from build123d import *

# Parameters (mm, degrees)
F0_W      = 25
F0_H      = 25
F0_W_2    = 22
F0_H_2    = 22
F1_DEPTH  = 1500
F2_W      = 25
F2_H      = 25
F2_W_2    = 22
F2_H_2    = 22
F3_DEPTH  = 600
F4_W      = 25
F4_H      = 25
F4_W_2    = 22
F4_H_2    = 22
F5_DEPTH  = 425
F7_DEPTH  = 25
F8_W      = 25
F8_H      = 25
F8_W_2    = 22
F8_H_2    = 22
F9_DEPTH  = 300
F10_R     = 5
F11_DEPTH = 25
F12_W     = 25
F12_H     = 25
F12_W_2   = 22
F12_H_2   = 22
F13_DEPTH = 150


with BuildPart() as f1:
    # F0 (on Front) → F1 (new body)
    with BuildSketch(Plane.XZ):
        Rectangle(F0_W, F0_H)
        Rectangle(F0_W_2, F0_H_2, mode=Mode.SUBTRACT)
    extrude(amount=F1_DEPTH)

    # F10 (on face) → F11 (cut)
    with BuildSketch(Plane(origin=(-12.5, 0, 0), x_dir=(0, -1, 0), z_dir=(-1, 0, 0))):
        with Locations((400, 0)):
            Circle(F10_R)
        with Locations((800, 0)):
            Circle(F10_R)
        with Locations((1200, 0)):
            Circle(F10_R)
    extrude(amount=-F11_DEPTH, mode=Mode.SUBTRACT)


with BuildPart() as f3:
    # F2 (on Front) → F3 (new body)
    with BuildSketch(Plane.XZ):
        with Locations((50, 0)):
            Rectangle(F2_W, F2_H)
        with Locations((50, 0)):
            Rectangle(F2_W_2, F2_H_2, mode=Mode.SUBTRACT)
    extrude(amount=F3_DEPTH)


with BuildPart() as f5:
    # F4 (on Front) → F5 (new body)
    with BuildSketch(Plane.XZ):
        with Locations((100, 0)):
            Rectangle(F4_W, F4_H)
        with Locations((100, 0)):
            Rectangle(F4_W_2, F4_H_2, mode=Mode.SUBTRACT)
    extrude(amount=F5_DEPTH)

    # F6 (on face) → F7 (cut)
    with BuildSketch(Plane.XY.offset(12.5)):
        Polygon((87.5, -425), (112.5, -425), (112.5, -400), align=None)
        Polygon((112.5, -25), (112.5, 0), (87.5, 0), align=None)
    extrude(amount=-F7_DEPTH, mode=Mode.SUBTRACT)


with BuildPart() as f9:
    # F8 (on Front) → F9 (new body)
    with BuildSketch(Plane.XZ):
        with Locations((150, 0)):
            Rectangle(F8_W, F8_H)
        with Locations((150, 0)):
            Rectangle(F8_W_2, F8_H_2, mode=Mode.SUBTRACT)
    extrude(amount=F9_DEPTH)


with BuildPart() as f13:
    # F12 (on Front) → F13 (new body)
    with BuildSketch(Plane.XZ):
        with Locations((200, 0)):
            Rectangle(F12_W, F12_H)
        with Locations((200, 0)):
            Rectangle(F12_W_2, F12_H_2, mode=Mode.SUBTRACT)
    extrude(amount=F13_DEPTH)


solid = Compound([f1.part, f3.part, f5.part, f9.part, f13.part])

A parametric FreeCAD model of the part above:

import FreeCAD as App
import Part
import Sketcher
Q = App.Units.Quantity

doc = App.newDocument("Part")
body = doc.addObject("PartDesign::Body", "Body")

sketch1 = body.newObject("Sketcher::SketchObject", "Sketch")
sketch1.AttachmentSupport = (doc.getObject("XZ_Plane"), [""])
sketch1.MapMode = "FlatFace"
sketch1.addGeometry([
    Part.LineSegment(App.Vector(-12, 12, 0), App.Vector(-12, -12, 0)),
    Part.LineSegment(App.Vector(-12, -12, 0), App.Vector(12, -12, 0)),
    Part.LineSegment(App.Vector(12, -12, 0), App.Vector(12, 12, 0)),
    Part.LineSegment(App.Vector(12, 12, 0), App.Vector(-12, 12, 0)),
    Part.LineSegment(App.Vector(11, -11, 0), App.Vector(-11, -11, 0)),
    Part.LineSegment(App.Vector(-11, -11, 0), App.Vector(-11, 11, 0)),
    Part.LineSegment(App.Vector(-11, 11, 0), App.Vector(11, 11, 0)),
    Part.LineSegment(App.Vector(11, 11, 0), App.Vector(11, -11, 0)),
], False)
sketch1.addConstraint([
    Sketcher.Constraint("Coincident", 0, 2, 1, 1),
    Sketcher.Constraint("Coincident", 1, 2, 2, 1),
    Sketcher.Constraint("Coincident", 2, 2, 3, 1),
    Sketcher.Constraint("Coincident", 3, 2, 0, 1),
    Sketcher.Constraint("Coincident", 4, 2, 5, 1),
    Sketcher.Constraint("Coincident", 5, 2, 6, 1),
    Sketcher.Constraint("Coincident", 6, 2, 7, 1),
    Sketcher.Constraint("Coincident", 7, 2, 4, 1),
    Sketcher.Constraint("Vertical", 0),
    Sketcher.Constraint("Horizontal", 1),
    Sketcher.Constraint("Vertical", 2),
    Sketcher.Constraint("Horizontal", 3),
    Sketcher.Constraint("Horizontal", 4),
    Sketcher.Constraint("Vertical", 5),
    Sketcher.Constraint("Horizontal", 6),
    Sketcher.Constraint("Vertical", 7),
    Sketcher.Constraint("Symmetric", 0, 2, 2, 2, -1, 1),
    Sketcher.Constraint("Symmetric", 4, 2, 6, 2, -1, 1),
    Sketcher.Constraint("Equal", 3, 0),
    Sketcher.Constraint("Equal", 6, 5),
    Sketcher.Constraint("DistanceX", 1, 1, 1, 2, Q("25 mm")),
    Sketcher.Constraint("DistanceX", 4, 2, 4, 1, Q("22 mm")),
])
pad1 = body.newObject("PartDesign::Pad", "Pad")
pad1.Profile = sketch1
pad1.Length = 1500

sketch2 = body.newObject("Sketcher::SketchObject", "Sketch001")
sketch2.AttachmentSupport = (doc.getObject("YZ_Plane"), [""])
sketch2.MapMode = "FlatFace"
sketch2.AttachmentOffset = App.Placement(App.Vector(0, 0, -12.5), App.Rotation())
sketch2.addGeometry([
    Part.Circle(App.Vector(-400, 0, 0), App.Vector(0, 0, 1), 5),
    Part.Circle(App.Vector(-800, 0, 0), App.Vector(0, 0, 1), 5),
    Part.Circle(App.Vector(-1200, 0, 0), App.Vector(0, 0, 1), 5),
], False)
sketch2.addConstraint([
    Sketcher.Constraint("Equal", 0, 1),
    Sketcher.Constraint("Equal", 1, 2),
    Sketcher.Constraint("PointOnObject", 0, 3, -1),
    Sketcher.Constraint("PointOnObject", 1, 3, -1),
    Sketcher.Constraint("PointOnObject", 2, 3, -1),
    Sketcher.Constraint("Diameter", 0, Q("10 mm")),
    Sketcher.Constraint("DistanceX", 0, 3, -1, 1, Q("400 mm")),
    Sketcher.Constraint("DistanceX", 1, 3, -1, 1, Q("800 mm")),
    Sketcher.Constraint("DistanceX", 2, 3, -1, 1, Q("1200 mm")),
])
pocket1 = body.newObject("PartDesign::Pocket", "Pocket")
pocket1.Profile = sketch2
pocket1.Length = 25
pocket1.Reversed = True
body2 = doc.addObject("PartDesign::Body", "Body001")

sketch3 = body2.newObject("Sketcher::SketchObject", "Sketch002")
sketch3.AttachmentSupport = (doc.getObject("XZ_Plane001"), [""])
sketch3.MapMode = "FlatFace"
sketch3.addGeometry([
    Part.LineSegment(App.Vector(38, 12, 0), App.Vector(38, -12, 0)),
    Part.LineSegment(App.Vector(38, -12, 0), App.Vector(62, -12, 0)),
    Part.LineSegment(App.Vector(62, -12, 0), App.Vector(62, 12, 0)),
    Part.LineSegment(App.Vector(62, 12, 0), App.Vector(38, 12, 0)),
    Part.LineSegment(App.Vector(61, -11, 0), App.Vector(39, -11, 0)),
    Part.LineSegment(App.Vector(39, -11, 0), App.Vector(39, 11, 0)),
    Part.LineSegment(App.Vector(39, 11, 0), App.Vector(61, 11, 0)),
    Part.LineSegment(App.Vector(61, 11, 0), App.Vector(61, -11, 0)),
], False)
sketch3.addConstraint([
    Sketcher.Constraint("Coincident", 0, 2, 1, 1),
    Sketcher.Constraint("Coincident", 1, 2, 2, 1),
    Sketcher.Constraint("Coincident", 2, 2, 3, 1),
    Sketcher.Constraint("Coincident", 3, 2, 0, 1),
    Sketcher.Constraint("Coincident", 4, 2, 5, 1),
    Sketcher.Constraint("Coincident", 5, 2, 6, 1),
    Sketcher.Constraint("Coincident", 6, 2, 7, 1),
    Sketcher.Constraint("Coincident", 7, 2, 4, 1),
    Sketcher.Constraint("Vertical", 0),
    Sketcher.Constraint("Horizontal", 1),
    Sketcher.Constraint("Vertical", 2),
    Sketcher.Constraint("Horizontal", 3),
    Sketcher.Constraint("Horizontal", 4),
    Sketcher.Constraint("Vertical", 5),
    Sketcher.Constraint("Horizontal", 6),
    Sketcher.Constraint("Vertical", 7),
    Sketcher.Constraint("Equal", 3, 0),
    Sketcher.Constraint("Equal", 6, 5),
    Sketcher.Constraint("DistanceX", 1, 1, 1, 2, Q("25 mm")),
    Sketcher.Constraint("DistanceX", 4, 2, 4, 1, Q("22 mm")),
    Sketcher.Constraint("DistanceX", -1, 1, 4, 2, Q("39 mm")),
    Sketcher.Constraint("DistanceY", 4, 2, -1, 1, Q("11 mm")),
    Sketcher.Constraint("DistanceX", -1, 1, 0, 2, Q("37.5 mm")),
    Sketcher.Constraint("DistanceY", 0, 2, -1, 1, Q("12.5 mm")),
])
pad2 = body2.newObject("PartDesign::Pad", "Pad001")
pad2.Profile = sketch3
pad2.Length = 600
body3 = doc.addObject("PartDesign::Body", "Body002")

sketch4 = body3.newObject("Sketcher::SketchObject", "Sketch003")
sketch4.AttachmentSupport = (doc.getObject("XZ_Plane002"), [""])
sketch4.MapMode = "FlatFace"
sketch4.addGeometry([
    Part.LineSegment(App.Vector(88, 12, 0), App.Vector(88, -12, 0)),
    Part.LineSegment(App.Vector(88, -12, 0), App.Vector(112, -12, 0)),
    Part.LineSegment(App.Vector(112, -12, 0), App.Vector(112, 12, 0)),
    Part.LineSegment(App.Vector(112, 12, 0), App.Vector(88, 12, 0)),
    Part.LineSegment(App.Vector(111, -11, 0), App.Vector(89, -11, 0)),
    Part.LineSegment(App.Vector(89, -11, 0), App.Vector(89, 11, 0)),
    Part.LineSegment(App.Vector(89, 11, 0), App.Vector(111, 11, 0)),
    Part.LineSegment(App.Vector(111, 11, 0), App.Vector(111, -11, 0)),
], False)
sketch4.addConstraint([
    Sketcher.Constraint("Coincident", 0, 2, 1, 1),
    Sketcher.Constraint("Coincident", 1, 2, 2, 1),
    Sketcher.Constraint("Coincident", 2, 2, 3, 1),
    Sketcher.Constraint("Coincident", 3, 2, 0, 1),
    Sketcher.Constraint("Coincident", 4, 2, 5, 1),
    Sketcher.Constraint("Coincident", 5, 2, 6, 1),
    Sketcher.Constraint("Coincident", 6, 2, 7, 1),
    Sketcher.Constraint("Coincident", 7, 2, 4, 1),
    Sketcher.Constraint("Vertical", 0),
    Sketcher.Constraint("Horizontal", 1),
    Sketcher.Constraint("Vertical", 2),
    Sketcher.Constraint("Horizontal", 3),
    Sketcher.Constraint("Horizontal", 4),
    Sketcher.Constraint("Vertical", 5),
    Sketcher.Constraint("Horizontal", 6),
    Sketcher.Constraint("Vertical", 7),
    Sketcher.Constraint("Equal", 3, 0),
    Sketcher.Constraint("Equal", 6, 5),
    Sketcher.Constraint("DistanceX", 1, 1, 1, 2, Q("25 mm")),
    Sketcher.Constraint("DistanceX", 4, 2, 4, 1, Q("22 mm")),
    Sketcher.Constraint("DistanceX", -1, 1, 4, 2, Q("89 mm")),
    Sketcher.Constraint("DistanceY", 4, 2, -1, 1, Q("11 mm")),
    Sketcher.Constraint("DistanceX", -1, 1, 0, 2, Q("87.5 mm")),
    Sketcher.Constraint("DistanceY", 0, 2, -1, 1, Q("12.5 mm")),
])
pad3 = body3.newObject("PartDesign::Pad", "Pad002")
pad3.Profile = sketch4
pad3.Length = 425

sketch5 = body3.newObject("Sketcher::SketchObject", "Sketch004")
sketch5.AttachmentSupport = (doc.getObject("XY_Plane002"), [""])
sketch5.MapMode = "FlatFace"
sketch5.AttachmentOffset = App.Placement(App.Vector(0, 0, 12.5), App.Rotation())
sketch5.addGeometry([
    Part.LineSegment(App.Vector(88, -425, 0), App.Vector(112, -425, 0)),
    Part.LineSegment(App.Vector(112, -425, 0), App.Vector(112, -400, 0)),
    Part.LineSegment(App.Vector(112, -400, 0), App.Vector(88, -425, 0)),
    Part.LineSegment(App.Vector(112, -25, 0), App.Vector(112, 0, 0)),
    Part.LineSegment(App.Vector(112, 0, 0), App.Vector(88, 0, 0)),
    Part.LineSegment(App.Vector(88, 0, 0), App.Vector(112, -25, 0)),
], False)
sketch5.addConstraint([
    Sketcher.Constraint("Coincident", 0, 2, 1, 1),
    Sketcher.Constraint("Coincident", 1, 2, 2, 1),
    Sketcher.Constraint("Coincident", 2, 2, 0, 1),
    Sketcher.Constraint("Coincident", 3, 2, 4, 1),
    Sketcher.Constraint("Coincident", 4, 2, 5, 1),
    Sketcher.Constraint("Coincident", 5, 2, 3, 1),
    Sketcher.Constraint("Horizontal", 0),
    Sketcher.Constraint("Vertical", 1),
    Sketcher.Constraint("Vertical", 3),
    Sketcher.Constraint("Horizontal", 4),
    Sketcher.Constraint("PointOnObject", 3, 2, -1),
    Sketcher.Constraint("Perpendicular", 2, 5),
    Sketcher.Constraint("Vertical", 1, 2, 3, 2),
    Sketcher.Constraint("Vertical", 2, 2, 4, 2),
    Sketcher.Constraint("Equal", 4, 1),
    Sketcher.Constraint("DistanceX", 0, 1, 0, 2, Q("25 mm")),
    Sketcher.Constraint("DistanceY", 0, 2, -1, 1, Q("425 mm")),
    Sketcher.Constraint("DistanceX", -1, 1, 0, 2, Q("112.5 mm")),
])
pocket2 = body3.newObject("PartDesign::Pocket", "Pocket001")
pocket2.Profile = sketch5
pocket2.Length = 25
body4 = doc.addObject("PartDesign::Body", "Body003")

sketch6 = body4.newObject("Sketcher::SketchObject", "Sketch005")
sketch6.AttachmentSupport = (doc.getObject("XZ_Plane003"), [""])
sketch6.MapMode = "FlatFace"
sketch6.addGeometry([
    Part.LineSegment(App.Vector(138, 12, 0), App.Vector(138, -12, 0)),
    Part.LineSegment(App.Vector(138, -12, 0), App.Vector(162, -12, 0)),
    Part.LineSegment(App.Vector(162, -12, 0), App.Vector(162, 12, 0)),
    Part.LineSegment(App.Vector(162, 12, 0), App.Vector(138, 12, 0)),
    Part.LineSegment(App.Vector(161, -11, 0), App.Vector(139, -11, 0)),
    Part.LineSegment(App.Vector(139, -11, 0), App.Vector(139, 11, 0)),
    Part.LineSegment(App.Vector(139, 11, 0), App.Vector(161, 11, 0)),
    Part.LineSegment(App.Vector(161, 11, 0), App.Vector(161, -11, 0)),
], False)
sketch6.addConstraint([
    Sketcher.Constraint("Coincident", 0, 2, 1, 1),
    Sketcher.Constraint("Coincident", 1, 2, 2, 1),
    Sketcher.Constraint("Coincident", 2, 2, 3, 1),
    Sketcher.Constraint("Coincident", 3, 2, 0, 1),
    Sketcher.Constraint("Coincident", 4, 2, 5, 1),
    Sketcher.Constraint("Coincident", 5, 2, 6, 1),
    Sketcher.Constraint("Coincident", 6, 2, 7, 1),
    Sketcher.Constraint("Coincident", 7, 2, 4, 1),
    Sketcher.Constraint("Vertical", 0),
    Sketcher.Constraint("Horizontal", 1),
    Sketcher.Constraint("Vertical", 2),
    Sketcher.Constraint("Horizontal", 3),
    Sketcher.Constraint("Horizontal", 4),
    Sketcher.Constraint("Vertical", 5),
    Sketcher.Constraint("Horizontal", 6),
    Sketcher.Constraint("Vertical", 7),
    Sketcher.Constraint("Equal", 3, 0),
    Sketcher.Constraint("Equal", 6, 5),
    Sketcher.Constraint("DistanceX", 1, 1, 1, 2, Q("25 mm")),
    Sketcher.Constraint("DistanceX", 4, 2, 4, 1, Q("22 mm")),
    Sketcher.Constraint("DistanceX", -1, 1, 4, 2, Q("139 mm")),
    Sketcher.Constraint("DistanceY", 4, 2, -1, 1, Q("11 mm")),
    Sketcher.Constraint("DistanceX", -1, 1, 0, 2, Q("137.5 mm")),
    Sketcher.Constraint("DistanceY", 0, 2, -1, 1, Q("12.5 mm")),
])
pad4 = body4.newObject("PartDesign::Pad", "Pad003")
pad4.Profile = sketch6
pad4.Length = 300
body5 = doc.addObject("PartDesign::Body", "Body004")

sketch7 = body5.newObject("Sketcher::SketchObject", "Sketch006")
sketch7.AttachmentSupport = (doc.getObject("XZ_Plane004"), [""])
sketch7.MapMode = "FlatFace"
sketch7.addGeometry([
    Part.LineSegment(App.Vector(188, 12, 0), App.Vector(188, -12, 0)),
    Part.LineSegment(App.Vector(188, -12, 0), App.Vector(212, -12, 0)),
    Part.LineSegment(App.Vector(212, -12, 0), App.Vector(212, 12, 0)),
    Part.LineSegment(App.Vector(212, 12, 0), App.Vector(188, 12, 0)),
    Part.LineSegment(App.Vector(211, -11, 0), App.Vector(189, -11, 0)),
    Part.LineSegment(App.Vector(189, -11, 0), App.Vector(189, 11, 0)),
    Part.LineSegment(App.Vector(189, 11, 0), App.Vector(211, 11, 0)),
    Part.LineSegment(App.Vector(211, 11, 0), App.Vector(211, -11, 0)),
], False)
sketch7.addConstraint([
    Sketcher.Constraint("Coincident", 0, 2, 1, 1),
    Sketcher.Constraint("Coincident", 1, 2, 2, 1),
    Sketcher.Constraint("Coincident", 2, 2, 3, 1),
    Sketcher.Constraint("Coincident", 3, 2, 0, 1),
    Sketcher.Constraint("Coincident", 4, 2, 5, 1),
    Sketcher.Constraint("Coincident", 5, 2, 6, 1),
    Sketcher.Constraint("Coincident", 6, 2, 7, 1),
    Sketcher.Constraint("Coincident", 7, 2, 4, 1),
    Sketcher.Constraint("Vertical", 0),
    Sketcher.Constraint("Horizontal", 1),
    Sketcher.Constraint("Vertical", 2),
    Sketcher.Constraint("Horizontal", 3),
    Sketcher.Constraint("Horizontal", 4),
    Sketcher.Constraint("Vertical", 5),
    Sketcher.Constraint("Horizontal", 6),
    Sketcher.Constraint("Vertical", 7),
    Sketcher.Constraint("Equal", 3, 0),
    Sketcher.Constraint("Equal", 6, 5),
    Sketcher.Constraint("DistanceX", 1, 1, 1, 2, Q("25 mm")),
    Sketcher.Constraint("DistanceX", 4, 2, 4, 1, Q("22 mm")),
    Sketcher.Constraint("DistanceX", -1, 1, 4, 2, Q("189 mm")),
    Sketcher.Constraint("DistanceY", 4, 2, -1, 1, Q("11 mm")),
    Sketcher.Constraint("DistanceX", -1, 1, 0, 2, Q("187.5 mm")),
    Sketcher.Constraint("DistanceY", 0, 2, -1, 1, Q("12.5 mm")),
])
pad5 = body5.newObject("PartDesign::Pad", "Pad004")
pad5.Profile = sketch7
pad5.Length = 150

doc.recompute()
